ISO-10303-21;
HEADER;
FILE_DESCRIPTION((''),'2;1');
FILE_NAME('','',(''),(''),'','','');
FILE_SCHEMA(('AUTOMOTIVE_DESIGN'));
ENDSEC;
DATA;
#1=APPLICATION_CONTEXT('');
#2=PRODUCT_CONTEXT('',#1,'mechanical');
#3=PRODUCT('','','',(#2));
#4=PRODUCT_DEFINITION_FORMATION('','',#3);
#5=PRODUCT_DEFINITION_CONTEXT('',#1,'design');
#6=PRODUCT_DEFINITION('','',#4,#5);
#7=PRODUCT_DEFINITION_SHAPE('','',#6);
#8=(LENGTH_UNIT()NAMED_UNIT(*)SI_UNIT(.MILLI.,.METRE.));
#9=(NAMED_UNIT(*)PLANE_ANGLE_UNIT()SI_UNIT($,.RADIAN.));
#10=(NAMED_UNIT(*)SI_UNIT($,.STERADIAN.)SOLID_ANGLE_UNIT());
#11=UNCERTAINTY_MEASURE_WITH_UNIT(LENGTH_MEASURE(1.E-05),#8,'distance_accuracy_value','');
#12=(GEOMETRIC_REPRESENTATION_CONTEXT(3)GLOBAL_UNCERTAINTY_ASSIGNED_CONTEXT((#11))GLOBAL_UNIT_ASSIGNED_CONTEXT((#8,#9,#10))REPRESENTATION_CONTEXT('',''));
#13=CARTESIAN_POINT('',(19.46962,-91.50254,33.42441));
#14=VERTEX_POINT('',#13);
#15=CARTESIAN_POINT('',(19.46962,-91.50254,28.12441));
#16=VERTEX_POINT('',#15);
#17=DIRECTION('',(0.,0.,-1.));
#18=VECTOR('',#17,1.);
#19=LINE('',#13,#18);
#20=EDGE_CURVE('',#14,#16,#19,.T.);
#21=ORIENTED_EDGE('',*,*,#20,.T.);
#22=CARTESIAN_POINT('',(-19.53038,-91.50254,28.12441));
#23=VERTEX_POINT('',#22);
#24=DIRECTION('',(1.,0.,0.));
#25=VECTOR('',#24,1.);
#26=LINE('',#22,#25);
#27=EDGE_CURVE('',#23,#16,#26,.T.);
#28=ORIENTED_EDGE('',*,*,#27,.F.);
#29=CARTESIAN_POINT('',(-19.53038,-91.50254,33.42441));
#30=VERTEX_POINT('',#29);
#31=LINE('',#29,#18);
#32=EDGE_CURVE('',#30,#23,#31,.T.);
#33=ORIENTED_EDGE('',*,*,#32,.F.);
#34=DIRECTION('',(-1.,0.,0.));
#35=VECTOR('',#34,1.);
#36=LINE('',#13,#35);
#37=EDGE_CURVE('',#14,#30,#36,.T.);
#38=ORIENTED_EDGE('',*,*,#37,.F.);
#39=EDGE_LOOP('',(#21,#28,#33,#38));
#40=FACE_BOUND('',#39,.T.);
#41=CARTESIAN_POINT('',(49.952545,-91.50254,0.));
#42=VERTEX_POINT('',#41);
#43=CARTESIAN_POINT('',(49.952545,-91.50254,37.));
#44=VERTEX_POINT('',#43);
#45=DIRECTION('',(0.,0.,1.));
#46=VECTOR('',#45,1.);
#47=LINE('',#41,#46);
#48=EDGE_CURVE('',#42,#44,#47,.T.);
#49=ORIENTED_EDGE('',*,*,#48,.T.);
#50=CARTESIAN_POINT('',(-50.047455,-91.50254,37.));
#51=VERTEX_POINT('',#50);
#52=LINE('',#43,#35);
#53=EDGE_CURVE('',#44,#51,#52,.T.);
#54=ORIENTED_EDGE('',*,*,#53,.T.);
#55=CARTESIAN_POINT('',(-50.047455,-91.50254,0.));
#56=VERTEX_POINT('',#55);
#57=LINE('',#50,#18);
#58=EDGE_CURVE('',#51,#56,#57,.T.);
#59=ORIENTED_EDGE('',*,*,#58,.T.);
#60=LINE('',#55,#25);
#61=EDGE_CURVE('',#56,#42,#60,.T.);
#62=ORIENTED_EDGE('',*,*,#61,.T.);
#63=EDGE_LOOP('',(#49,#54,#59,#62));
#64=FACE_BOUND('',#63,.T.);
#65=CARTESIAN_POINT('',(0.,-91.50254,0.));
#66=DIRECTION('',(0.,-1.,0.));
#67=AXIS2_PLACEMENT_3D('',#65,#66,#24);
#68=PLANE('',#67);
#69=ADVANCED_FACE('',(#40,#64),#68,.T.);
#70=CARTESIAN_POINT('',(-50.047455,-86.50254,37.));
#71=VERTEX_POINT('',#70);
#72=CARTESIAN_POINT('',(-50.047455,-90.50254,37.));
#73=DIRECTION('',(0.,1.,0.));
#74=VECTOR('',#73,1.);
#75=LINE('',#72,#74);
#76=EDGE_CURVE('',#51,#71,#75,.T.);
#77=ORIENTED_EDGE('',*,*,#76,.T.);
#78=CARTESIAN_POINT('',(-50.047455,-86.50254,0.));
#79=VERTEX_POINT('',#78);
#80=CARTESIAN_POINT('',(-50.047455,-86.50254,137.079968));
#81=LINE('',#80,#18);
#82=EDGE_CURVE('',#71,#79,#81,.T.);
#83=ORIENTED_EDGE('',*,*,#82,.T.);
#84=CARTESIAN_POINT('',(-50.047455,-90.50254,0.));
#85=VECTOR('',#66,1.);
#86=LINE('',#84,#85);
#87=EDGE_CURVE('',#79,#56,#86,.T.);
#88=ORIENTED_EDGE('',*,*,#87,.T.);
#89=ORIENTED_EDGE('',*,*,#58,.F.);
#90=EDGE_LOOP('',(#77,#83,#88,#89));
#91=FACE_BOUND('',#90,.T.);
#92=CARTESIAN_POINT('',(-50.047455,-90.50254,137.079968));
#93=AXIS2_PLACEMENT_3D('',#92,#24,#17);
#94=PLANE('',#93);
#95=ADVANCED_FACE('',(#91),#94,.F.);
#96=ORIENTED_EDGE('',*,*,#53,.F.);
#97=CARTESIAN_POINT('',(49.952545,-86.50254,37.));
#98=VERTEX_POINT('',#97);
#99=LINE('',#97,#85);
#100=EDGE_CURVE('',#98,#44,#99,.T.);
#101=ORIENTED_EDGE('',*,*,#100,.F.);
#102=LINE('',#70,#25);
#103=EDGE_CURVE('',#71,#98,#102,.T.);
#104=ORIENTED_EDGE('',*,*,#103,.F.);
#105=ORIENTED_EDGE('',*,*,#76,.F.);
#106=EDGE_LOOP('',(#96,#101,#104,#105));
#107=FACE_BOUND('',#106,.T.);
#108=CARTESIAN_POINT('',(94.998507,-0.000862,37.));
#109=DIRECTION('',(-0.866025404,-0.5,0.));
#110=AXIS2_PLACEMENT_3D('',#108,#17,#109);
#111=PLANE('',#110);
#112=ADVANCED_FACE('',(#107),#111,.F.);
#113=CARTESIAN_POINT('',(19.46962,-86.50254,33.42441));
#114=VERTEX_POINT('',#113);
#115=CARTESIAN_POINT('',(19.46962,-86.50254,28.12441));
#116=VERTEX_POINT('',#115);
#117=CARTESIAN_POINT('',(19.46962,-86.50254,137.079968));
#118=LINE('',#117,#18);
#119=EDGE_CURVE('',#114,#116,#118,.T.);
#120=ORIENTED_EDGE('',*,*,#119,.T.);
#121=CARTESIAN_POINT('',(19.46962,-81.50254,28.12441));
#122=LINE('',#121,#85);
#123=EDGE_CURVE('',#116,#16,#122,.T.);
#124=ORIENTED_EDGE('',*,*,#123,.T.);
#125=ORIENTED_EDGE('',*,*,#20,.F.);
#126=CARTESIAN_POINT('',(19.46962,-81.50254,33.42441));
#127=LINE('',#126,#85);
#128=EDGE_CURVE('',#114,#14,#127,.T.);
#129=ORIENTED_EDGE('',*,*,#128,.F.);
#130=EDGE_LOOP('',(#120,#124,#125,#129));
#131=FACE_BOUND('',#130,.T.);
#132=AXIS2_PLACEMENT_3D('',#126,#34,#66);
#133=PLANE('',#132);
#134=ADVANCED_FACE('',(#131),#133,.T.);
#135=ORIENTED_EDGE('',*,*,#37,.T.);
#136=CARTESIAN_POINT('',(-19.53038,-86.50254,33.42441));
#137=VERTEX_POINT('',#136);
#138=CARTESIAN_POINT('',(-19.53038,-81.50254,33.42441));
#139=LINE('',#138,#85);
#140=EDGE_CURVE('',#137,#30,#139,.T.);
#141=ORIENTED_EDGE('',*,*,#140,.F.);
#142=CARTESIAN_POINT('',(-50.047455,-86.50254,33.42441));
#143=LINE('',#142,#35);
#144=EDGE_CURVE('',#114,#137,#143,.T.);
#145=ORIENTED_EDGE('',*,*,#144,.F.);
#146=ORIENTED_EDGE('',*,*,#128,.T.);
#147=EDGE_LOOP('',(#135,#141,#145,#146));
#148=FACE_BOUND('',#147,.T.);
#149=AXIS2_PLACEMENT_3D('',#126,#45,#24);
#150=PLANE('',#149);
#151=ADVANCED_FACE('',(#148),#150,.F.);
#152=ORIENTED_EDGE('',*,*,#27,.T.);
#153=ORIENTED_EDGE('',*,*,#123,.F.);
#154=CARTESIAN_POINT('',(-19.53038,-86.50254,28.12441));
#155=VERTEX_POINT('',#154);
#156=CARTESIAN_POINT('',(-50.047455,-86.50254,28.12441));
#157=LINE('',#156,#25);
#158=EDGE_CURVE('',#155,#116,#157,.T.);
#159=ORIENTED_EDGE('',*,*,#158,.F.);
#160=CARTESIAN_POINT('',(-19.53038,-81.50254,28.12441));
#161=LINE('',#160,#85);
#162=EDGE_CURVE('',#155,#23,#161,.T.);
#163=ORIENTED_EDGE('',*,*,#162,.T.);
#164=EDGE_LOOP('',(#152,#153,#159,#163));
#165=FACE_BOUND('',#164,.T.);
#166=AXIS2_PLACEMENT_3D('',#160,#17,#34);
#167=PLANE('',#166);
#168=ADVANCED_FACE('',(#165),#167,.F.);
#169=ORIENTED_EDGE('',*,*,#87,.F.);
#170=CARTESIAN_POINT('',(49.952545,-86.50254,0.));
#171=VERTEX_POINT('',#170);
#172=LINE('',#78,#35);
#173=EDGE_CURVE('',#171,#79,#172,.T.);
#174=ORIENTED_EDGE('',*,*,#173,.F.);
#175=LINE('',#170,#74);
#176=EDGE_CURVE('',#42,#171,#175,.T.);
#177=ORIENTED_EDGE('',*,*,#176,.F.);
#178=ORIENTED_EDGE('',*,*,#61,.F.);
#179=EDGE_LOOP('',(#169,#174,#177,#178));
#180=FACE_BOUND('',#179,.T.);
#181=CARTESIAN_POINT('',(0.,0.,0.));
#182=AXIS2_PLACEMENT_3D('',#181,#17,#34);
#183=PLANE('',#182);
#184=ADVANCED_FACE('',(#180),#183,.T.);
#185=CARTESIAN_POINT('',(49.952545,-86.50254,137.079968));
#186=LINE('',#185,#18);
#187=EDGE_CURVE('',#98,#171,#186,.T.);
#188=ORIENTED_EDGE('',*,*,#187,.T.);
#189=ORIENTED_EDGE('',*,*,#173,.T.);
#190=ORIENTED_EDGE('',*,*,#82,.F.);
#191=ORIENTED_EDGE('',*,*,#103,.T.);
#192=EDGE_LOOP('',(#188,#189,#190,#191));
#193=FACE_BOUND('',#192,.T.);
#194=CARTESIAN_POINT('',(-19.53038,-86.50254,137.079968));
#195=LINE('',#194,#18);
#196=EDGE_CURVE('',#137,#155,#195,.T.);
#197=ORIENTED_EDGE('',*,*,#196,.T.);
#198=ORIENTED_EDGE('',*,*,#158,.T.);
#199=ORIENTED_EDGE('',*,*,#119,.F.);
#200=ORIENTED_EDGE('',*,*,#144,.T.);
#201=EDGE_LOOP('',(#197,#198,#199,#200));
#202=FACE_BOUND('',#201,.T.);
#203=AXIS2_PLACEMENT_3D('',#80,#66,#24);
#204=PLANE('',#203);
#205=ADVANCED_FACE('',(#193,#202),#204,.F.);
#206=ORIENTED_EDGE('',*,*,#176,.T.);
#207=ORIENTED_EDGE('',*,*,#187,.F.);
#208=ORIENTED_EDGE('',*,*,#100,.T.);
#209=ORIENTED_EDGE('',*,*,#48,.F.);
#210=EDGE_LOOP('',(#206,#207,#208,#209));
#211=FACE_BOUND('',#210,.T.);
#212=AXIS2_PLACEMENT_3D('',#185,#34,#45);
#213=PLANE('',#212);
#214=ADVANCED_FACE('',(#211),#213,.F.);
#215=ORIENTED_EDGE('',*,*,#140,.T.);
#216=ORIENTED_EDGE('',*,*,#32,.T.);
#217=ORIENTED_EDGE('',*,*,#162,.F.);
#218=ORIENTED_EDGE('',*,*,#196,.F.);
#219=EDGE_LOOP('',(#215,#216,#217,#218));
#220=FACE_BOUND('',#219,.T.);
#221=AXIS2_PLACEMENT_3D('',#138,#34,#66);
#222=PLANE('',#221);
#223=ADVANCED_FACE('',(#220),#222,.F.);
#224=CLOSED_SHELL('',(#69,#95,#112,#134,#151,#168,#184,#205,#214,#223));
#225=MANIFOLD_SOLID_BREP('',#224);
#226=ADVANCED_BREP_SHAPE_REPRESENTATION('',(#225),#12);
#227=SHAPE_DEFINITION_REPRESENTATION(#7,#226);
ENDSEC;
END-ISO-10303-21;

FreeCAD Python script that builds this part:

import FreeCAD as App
import Part
import Sketcher
from FreeCAD import Vector
Q = App.Units.Quantity

doc = App.newDocument("Part")
body = doc.addObject("PartDesign::Body", "Body")

# Sketch on XY plane
sketch1 = body.newObject("Sketcher::SketchObject", "Sketch")
sketch1.AttachmentSupport = (doc.getObject("XY_Plane"), [""])
sketch1.MapMode = "FlatFace"
sketch1.addGeometry([
    Part.LineSegment(Vector(-50, -86.5, 0), Vector(-50, -90.5, 0)),
    Part.LineSegment(Vector(-50, -90.5, 0), Vector(50, -90.5, 0)),
    Part.LineSegment(Vector(50, -90.5, 0), Vector(50, -86.5, 0)),
    Part.LineSegment(Vector(50, -86.5, 0), Vector(-50, -86.5, 0)),
], False)
sketch1.addConstraint([
    Sketcher.Constraint("Coincident", 0, 2, 1, 1),
    Sketcher.Constraint("Coincident", 1, 2, 2, 1),
    Sketcher.Constraint("Coincident", 2, 2, 3, 1),
    Sketcher.Constraint("Coincident", 3, 2, 0, 1),
    Sketcher.Constraint("Vertical", 0),
    Sketcher.Constraint("Horizontal", 1),
    Sketcher.Constraint("Vertical", 2),
    Sketcher.Constraint("Horizontal", 3),
    Sketcher.Constraint("DistanceX", 1, 1, 1, 2, Q("100 mm")),
    Sketcher.Constraint("DistanceY", 0, 2, 0, 1, Q("4 mm")),
    Sketcher.Constraint("DistanceY", 0, 2, -1, 1, Q("90.50254 mm")),
    Sketcher.Constraint("DistanceX", 0, 2, -1, 1, Q("50.047455 mm")),
])
pad1 = body.newObject("PartDesign::Pad", "Pad")
pad1.Profile = sketch1
pad1.Length = 37

# Sketch on XZ plane
sketch2 = body.newObject("Sketcher::SketchObject", "Sketch001")
sketch2.AttachmentSupport = (doc.getObject("XZ_Plane"), [""])
sketch2.MapMode = "FlatFace"
sketch2.AttachmentOffset = App.Placement(Vector(0, 0, 90.50254), App.Rotation())
sketch2.addGeometry([
    Part.LineSegment(Vector(-50, 37, 0), Vector(-50, 0, 0)),
    Part.LineSegment(Vector(-50, 0, 0), Vector(50, 0, 0)),
    Part.LineSegment(Vector(50, 0, 0), Vector(50, 37, 0)),
    Part.LineSegment(Vector(50, 37, 0), Vector(-50, 37, 0)),
], False)
sketch2.addConstraint([
    Sketcher.Constraint("Coincident", 0, 2, 1, 1),
    Sketcher.Constraint("Coincident", 1, 2, 2, 1),
    Sketcher.Constraint("Coincident", 2, 2, 3, 1),
    Sketcher.Constraint("Coincident", 3, 2, 0, 1),
    Sketcher.Constraint("Vertical", 0),
    Sketcher.Constraint("Horizontal", 1),
    Sketcher.Constraint("Vertical", 2),
    Sketcher.Constraint("Horizontal", 3),
    Sketcher.Constraint("PointOnObject", 0, 2, -1),
    Sketcher.Constraint("DistanceX", 1, 1, 1, 2, Q("100 mm")),
    Sketcher.Constraint("DistanceY", 0, 2, 0, 1, Q("37 mm")),
    Sketcher.Constraint("DistanceX", 0, 2, -1, 1, Q("50.047455 mm")),
])
pad2 = body.newObject("PartDesign::Pad", "Pad001")
pad2.Profile = sketch2
pad2.Length = 1

# Sketch on XZ plane
sketch3 = body.newObject("Sketcher::SketchObject", "Sketch002")
sketch3.AttachmentSupport = (doc.getObject("XZ_Plane"), [""])
sketch3.MapMode = "FlatFace"
sketch3.AttachmentOffset = App.Placement(Vector(0, 0, 91.50254), App.Rotation())
sketch3.addGeometry([
    Part.LineSegment(Vector(-20, 33, 0), Vector(-20, 28, 0)),
    Part.LineSegment(Vector(-20, 28, 0), Vector(19, 28, 0)),
    Part.LineSegment(Vector(19, 28, 0), Vector(19, 33, 0)),
    Part.LineSegment(Vector(19, 33, 0), Vector(-20, 33, 0)),
], False)
sketch3.addConstraint([
    Sketcher.Constraint("Coincident", 0, 2, 1, 1),
    Sketcher.Constraint("Coincident", 1, 2, 2, 1),
    Sketcher.Constraint("Coincident", 2, 2, 3, 1),
    Sketcher.Constraint("Coincident", 3, 2, 0, 1),
    Sketcher.Constraint("Vertical", 0),
    Sketcher.Constraint("Horizontal", 1),
    Sketcher.Constraint("Vertical", 2),
    Sketcher.Constraint("Horizontal", 3),
    Sketcher.Constraint("DistanceX", 1, 1, 1, 2, Q("39 mm")),
    Sketcher.Constraint("DistanceY", 0, 2, 0, 1, Q("5.3 mm")),
    Sketcher.Constraint("DistanceX", 0, 2, -1, 1, Q("19.53038 mm")),
    Sketcher.Constraint("DistanceY", -1, 1, 0, 2, Q("28.12441 mm")),
])
pocket1 = body.newObject("PartDesign::Pocket", "Pocket")
pocket1.Profile = sketch3
pocket1.Length = 10

doc.recompute()
